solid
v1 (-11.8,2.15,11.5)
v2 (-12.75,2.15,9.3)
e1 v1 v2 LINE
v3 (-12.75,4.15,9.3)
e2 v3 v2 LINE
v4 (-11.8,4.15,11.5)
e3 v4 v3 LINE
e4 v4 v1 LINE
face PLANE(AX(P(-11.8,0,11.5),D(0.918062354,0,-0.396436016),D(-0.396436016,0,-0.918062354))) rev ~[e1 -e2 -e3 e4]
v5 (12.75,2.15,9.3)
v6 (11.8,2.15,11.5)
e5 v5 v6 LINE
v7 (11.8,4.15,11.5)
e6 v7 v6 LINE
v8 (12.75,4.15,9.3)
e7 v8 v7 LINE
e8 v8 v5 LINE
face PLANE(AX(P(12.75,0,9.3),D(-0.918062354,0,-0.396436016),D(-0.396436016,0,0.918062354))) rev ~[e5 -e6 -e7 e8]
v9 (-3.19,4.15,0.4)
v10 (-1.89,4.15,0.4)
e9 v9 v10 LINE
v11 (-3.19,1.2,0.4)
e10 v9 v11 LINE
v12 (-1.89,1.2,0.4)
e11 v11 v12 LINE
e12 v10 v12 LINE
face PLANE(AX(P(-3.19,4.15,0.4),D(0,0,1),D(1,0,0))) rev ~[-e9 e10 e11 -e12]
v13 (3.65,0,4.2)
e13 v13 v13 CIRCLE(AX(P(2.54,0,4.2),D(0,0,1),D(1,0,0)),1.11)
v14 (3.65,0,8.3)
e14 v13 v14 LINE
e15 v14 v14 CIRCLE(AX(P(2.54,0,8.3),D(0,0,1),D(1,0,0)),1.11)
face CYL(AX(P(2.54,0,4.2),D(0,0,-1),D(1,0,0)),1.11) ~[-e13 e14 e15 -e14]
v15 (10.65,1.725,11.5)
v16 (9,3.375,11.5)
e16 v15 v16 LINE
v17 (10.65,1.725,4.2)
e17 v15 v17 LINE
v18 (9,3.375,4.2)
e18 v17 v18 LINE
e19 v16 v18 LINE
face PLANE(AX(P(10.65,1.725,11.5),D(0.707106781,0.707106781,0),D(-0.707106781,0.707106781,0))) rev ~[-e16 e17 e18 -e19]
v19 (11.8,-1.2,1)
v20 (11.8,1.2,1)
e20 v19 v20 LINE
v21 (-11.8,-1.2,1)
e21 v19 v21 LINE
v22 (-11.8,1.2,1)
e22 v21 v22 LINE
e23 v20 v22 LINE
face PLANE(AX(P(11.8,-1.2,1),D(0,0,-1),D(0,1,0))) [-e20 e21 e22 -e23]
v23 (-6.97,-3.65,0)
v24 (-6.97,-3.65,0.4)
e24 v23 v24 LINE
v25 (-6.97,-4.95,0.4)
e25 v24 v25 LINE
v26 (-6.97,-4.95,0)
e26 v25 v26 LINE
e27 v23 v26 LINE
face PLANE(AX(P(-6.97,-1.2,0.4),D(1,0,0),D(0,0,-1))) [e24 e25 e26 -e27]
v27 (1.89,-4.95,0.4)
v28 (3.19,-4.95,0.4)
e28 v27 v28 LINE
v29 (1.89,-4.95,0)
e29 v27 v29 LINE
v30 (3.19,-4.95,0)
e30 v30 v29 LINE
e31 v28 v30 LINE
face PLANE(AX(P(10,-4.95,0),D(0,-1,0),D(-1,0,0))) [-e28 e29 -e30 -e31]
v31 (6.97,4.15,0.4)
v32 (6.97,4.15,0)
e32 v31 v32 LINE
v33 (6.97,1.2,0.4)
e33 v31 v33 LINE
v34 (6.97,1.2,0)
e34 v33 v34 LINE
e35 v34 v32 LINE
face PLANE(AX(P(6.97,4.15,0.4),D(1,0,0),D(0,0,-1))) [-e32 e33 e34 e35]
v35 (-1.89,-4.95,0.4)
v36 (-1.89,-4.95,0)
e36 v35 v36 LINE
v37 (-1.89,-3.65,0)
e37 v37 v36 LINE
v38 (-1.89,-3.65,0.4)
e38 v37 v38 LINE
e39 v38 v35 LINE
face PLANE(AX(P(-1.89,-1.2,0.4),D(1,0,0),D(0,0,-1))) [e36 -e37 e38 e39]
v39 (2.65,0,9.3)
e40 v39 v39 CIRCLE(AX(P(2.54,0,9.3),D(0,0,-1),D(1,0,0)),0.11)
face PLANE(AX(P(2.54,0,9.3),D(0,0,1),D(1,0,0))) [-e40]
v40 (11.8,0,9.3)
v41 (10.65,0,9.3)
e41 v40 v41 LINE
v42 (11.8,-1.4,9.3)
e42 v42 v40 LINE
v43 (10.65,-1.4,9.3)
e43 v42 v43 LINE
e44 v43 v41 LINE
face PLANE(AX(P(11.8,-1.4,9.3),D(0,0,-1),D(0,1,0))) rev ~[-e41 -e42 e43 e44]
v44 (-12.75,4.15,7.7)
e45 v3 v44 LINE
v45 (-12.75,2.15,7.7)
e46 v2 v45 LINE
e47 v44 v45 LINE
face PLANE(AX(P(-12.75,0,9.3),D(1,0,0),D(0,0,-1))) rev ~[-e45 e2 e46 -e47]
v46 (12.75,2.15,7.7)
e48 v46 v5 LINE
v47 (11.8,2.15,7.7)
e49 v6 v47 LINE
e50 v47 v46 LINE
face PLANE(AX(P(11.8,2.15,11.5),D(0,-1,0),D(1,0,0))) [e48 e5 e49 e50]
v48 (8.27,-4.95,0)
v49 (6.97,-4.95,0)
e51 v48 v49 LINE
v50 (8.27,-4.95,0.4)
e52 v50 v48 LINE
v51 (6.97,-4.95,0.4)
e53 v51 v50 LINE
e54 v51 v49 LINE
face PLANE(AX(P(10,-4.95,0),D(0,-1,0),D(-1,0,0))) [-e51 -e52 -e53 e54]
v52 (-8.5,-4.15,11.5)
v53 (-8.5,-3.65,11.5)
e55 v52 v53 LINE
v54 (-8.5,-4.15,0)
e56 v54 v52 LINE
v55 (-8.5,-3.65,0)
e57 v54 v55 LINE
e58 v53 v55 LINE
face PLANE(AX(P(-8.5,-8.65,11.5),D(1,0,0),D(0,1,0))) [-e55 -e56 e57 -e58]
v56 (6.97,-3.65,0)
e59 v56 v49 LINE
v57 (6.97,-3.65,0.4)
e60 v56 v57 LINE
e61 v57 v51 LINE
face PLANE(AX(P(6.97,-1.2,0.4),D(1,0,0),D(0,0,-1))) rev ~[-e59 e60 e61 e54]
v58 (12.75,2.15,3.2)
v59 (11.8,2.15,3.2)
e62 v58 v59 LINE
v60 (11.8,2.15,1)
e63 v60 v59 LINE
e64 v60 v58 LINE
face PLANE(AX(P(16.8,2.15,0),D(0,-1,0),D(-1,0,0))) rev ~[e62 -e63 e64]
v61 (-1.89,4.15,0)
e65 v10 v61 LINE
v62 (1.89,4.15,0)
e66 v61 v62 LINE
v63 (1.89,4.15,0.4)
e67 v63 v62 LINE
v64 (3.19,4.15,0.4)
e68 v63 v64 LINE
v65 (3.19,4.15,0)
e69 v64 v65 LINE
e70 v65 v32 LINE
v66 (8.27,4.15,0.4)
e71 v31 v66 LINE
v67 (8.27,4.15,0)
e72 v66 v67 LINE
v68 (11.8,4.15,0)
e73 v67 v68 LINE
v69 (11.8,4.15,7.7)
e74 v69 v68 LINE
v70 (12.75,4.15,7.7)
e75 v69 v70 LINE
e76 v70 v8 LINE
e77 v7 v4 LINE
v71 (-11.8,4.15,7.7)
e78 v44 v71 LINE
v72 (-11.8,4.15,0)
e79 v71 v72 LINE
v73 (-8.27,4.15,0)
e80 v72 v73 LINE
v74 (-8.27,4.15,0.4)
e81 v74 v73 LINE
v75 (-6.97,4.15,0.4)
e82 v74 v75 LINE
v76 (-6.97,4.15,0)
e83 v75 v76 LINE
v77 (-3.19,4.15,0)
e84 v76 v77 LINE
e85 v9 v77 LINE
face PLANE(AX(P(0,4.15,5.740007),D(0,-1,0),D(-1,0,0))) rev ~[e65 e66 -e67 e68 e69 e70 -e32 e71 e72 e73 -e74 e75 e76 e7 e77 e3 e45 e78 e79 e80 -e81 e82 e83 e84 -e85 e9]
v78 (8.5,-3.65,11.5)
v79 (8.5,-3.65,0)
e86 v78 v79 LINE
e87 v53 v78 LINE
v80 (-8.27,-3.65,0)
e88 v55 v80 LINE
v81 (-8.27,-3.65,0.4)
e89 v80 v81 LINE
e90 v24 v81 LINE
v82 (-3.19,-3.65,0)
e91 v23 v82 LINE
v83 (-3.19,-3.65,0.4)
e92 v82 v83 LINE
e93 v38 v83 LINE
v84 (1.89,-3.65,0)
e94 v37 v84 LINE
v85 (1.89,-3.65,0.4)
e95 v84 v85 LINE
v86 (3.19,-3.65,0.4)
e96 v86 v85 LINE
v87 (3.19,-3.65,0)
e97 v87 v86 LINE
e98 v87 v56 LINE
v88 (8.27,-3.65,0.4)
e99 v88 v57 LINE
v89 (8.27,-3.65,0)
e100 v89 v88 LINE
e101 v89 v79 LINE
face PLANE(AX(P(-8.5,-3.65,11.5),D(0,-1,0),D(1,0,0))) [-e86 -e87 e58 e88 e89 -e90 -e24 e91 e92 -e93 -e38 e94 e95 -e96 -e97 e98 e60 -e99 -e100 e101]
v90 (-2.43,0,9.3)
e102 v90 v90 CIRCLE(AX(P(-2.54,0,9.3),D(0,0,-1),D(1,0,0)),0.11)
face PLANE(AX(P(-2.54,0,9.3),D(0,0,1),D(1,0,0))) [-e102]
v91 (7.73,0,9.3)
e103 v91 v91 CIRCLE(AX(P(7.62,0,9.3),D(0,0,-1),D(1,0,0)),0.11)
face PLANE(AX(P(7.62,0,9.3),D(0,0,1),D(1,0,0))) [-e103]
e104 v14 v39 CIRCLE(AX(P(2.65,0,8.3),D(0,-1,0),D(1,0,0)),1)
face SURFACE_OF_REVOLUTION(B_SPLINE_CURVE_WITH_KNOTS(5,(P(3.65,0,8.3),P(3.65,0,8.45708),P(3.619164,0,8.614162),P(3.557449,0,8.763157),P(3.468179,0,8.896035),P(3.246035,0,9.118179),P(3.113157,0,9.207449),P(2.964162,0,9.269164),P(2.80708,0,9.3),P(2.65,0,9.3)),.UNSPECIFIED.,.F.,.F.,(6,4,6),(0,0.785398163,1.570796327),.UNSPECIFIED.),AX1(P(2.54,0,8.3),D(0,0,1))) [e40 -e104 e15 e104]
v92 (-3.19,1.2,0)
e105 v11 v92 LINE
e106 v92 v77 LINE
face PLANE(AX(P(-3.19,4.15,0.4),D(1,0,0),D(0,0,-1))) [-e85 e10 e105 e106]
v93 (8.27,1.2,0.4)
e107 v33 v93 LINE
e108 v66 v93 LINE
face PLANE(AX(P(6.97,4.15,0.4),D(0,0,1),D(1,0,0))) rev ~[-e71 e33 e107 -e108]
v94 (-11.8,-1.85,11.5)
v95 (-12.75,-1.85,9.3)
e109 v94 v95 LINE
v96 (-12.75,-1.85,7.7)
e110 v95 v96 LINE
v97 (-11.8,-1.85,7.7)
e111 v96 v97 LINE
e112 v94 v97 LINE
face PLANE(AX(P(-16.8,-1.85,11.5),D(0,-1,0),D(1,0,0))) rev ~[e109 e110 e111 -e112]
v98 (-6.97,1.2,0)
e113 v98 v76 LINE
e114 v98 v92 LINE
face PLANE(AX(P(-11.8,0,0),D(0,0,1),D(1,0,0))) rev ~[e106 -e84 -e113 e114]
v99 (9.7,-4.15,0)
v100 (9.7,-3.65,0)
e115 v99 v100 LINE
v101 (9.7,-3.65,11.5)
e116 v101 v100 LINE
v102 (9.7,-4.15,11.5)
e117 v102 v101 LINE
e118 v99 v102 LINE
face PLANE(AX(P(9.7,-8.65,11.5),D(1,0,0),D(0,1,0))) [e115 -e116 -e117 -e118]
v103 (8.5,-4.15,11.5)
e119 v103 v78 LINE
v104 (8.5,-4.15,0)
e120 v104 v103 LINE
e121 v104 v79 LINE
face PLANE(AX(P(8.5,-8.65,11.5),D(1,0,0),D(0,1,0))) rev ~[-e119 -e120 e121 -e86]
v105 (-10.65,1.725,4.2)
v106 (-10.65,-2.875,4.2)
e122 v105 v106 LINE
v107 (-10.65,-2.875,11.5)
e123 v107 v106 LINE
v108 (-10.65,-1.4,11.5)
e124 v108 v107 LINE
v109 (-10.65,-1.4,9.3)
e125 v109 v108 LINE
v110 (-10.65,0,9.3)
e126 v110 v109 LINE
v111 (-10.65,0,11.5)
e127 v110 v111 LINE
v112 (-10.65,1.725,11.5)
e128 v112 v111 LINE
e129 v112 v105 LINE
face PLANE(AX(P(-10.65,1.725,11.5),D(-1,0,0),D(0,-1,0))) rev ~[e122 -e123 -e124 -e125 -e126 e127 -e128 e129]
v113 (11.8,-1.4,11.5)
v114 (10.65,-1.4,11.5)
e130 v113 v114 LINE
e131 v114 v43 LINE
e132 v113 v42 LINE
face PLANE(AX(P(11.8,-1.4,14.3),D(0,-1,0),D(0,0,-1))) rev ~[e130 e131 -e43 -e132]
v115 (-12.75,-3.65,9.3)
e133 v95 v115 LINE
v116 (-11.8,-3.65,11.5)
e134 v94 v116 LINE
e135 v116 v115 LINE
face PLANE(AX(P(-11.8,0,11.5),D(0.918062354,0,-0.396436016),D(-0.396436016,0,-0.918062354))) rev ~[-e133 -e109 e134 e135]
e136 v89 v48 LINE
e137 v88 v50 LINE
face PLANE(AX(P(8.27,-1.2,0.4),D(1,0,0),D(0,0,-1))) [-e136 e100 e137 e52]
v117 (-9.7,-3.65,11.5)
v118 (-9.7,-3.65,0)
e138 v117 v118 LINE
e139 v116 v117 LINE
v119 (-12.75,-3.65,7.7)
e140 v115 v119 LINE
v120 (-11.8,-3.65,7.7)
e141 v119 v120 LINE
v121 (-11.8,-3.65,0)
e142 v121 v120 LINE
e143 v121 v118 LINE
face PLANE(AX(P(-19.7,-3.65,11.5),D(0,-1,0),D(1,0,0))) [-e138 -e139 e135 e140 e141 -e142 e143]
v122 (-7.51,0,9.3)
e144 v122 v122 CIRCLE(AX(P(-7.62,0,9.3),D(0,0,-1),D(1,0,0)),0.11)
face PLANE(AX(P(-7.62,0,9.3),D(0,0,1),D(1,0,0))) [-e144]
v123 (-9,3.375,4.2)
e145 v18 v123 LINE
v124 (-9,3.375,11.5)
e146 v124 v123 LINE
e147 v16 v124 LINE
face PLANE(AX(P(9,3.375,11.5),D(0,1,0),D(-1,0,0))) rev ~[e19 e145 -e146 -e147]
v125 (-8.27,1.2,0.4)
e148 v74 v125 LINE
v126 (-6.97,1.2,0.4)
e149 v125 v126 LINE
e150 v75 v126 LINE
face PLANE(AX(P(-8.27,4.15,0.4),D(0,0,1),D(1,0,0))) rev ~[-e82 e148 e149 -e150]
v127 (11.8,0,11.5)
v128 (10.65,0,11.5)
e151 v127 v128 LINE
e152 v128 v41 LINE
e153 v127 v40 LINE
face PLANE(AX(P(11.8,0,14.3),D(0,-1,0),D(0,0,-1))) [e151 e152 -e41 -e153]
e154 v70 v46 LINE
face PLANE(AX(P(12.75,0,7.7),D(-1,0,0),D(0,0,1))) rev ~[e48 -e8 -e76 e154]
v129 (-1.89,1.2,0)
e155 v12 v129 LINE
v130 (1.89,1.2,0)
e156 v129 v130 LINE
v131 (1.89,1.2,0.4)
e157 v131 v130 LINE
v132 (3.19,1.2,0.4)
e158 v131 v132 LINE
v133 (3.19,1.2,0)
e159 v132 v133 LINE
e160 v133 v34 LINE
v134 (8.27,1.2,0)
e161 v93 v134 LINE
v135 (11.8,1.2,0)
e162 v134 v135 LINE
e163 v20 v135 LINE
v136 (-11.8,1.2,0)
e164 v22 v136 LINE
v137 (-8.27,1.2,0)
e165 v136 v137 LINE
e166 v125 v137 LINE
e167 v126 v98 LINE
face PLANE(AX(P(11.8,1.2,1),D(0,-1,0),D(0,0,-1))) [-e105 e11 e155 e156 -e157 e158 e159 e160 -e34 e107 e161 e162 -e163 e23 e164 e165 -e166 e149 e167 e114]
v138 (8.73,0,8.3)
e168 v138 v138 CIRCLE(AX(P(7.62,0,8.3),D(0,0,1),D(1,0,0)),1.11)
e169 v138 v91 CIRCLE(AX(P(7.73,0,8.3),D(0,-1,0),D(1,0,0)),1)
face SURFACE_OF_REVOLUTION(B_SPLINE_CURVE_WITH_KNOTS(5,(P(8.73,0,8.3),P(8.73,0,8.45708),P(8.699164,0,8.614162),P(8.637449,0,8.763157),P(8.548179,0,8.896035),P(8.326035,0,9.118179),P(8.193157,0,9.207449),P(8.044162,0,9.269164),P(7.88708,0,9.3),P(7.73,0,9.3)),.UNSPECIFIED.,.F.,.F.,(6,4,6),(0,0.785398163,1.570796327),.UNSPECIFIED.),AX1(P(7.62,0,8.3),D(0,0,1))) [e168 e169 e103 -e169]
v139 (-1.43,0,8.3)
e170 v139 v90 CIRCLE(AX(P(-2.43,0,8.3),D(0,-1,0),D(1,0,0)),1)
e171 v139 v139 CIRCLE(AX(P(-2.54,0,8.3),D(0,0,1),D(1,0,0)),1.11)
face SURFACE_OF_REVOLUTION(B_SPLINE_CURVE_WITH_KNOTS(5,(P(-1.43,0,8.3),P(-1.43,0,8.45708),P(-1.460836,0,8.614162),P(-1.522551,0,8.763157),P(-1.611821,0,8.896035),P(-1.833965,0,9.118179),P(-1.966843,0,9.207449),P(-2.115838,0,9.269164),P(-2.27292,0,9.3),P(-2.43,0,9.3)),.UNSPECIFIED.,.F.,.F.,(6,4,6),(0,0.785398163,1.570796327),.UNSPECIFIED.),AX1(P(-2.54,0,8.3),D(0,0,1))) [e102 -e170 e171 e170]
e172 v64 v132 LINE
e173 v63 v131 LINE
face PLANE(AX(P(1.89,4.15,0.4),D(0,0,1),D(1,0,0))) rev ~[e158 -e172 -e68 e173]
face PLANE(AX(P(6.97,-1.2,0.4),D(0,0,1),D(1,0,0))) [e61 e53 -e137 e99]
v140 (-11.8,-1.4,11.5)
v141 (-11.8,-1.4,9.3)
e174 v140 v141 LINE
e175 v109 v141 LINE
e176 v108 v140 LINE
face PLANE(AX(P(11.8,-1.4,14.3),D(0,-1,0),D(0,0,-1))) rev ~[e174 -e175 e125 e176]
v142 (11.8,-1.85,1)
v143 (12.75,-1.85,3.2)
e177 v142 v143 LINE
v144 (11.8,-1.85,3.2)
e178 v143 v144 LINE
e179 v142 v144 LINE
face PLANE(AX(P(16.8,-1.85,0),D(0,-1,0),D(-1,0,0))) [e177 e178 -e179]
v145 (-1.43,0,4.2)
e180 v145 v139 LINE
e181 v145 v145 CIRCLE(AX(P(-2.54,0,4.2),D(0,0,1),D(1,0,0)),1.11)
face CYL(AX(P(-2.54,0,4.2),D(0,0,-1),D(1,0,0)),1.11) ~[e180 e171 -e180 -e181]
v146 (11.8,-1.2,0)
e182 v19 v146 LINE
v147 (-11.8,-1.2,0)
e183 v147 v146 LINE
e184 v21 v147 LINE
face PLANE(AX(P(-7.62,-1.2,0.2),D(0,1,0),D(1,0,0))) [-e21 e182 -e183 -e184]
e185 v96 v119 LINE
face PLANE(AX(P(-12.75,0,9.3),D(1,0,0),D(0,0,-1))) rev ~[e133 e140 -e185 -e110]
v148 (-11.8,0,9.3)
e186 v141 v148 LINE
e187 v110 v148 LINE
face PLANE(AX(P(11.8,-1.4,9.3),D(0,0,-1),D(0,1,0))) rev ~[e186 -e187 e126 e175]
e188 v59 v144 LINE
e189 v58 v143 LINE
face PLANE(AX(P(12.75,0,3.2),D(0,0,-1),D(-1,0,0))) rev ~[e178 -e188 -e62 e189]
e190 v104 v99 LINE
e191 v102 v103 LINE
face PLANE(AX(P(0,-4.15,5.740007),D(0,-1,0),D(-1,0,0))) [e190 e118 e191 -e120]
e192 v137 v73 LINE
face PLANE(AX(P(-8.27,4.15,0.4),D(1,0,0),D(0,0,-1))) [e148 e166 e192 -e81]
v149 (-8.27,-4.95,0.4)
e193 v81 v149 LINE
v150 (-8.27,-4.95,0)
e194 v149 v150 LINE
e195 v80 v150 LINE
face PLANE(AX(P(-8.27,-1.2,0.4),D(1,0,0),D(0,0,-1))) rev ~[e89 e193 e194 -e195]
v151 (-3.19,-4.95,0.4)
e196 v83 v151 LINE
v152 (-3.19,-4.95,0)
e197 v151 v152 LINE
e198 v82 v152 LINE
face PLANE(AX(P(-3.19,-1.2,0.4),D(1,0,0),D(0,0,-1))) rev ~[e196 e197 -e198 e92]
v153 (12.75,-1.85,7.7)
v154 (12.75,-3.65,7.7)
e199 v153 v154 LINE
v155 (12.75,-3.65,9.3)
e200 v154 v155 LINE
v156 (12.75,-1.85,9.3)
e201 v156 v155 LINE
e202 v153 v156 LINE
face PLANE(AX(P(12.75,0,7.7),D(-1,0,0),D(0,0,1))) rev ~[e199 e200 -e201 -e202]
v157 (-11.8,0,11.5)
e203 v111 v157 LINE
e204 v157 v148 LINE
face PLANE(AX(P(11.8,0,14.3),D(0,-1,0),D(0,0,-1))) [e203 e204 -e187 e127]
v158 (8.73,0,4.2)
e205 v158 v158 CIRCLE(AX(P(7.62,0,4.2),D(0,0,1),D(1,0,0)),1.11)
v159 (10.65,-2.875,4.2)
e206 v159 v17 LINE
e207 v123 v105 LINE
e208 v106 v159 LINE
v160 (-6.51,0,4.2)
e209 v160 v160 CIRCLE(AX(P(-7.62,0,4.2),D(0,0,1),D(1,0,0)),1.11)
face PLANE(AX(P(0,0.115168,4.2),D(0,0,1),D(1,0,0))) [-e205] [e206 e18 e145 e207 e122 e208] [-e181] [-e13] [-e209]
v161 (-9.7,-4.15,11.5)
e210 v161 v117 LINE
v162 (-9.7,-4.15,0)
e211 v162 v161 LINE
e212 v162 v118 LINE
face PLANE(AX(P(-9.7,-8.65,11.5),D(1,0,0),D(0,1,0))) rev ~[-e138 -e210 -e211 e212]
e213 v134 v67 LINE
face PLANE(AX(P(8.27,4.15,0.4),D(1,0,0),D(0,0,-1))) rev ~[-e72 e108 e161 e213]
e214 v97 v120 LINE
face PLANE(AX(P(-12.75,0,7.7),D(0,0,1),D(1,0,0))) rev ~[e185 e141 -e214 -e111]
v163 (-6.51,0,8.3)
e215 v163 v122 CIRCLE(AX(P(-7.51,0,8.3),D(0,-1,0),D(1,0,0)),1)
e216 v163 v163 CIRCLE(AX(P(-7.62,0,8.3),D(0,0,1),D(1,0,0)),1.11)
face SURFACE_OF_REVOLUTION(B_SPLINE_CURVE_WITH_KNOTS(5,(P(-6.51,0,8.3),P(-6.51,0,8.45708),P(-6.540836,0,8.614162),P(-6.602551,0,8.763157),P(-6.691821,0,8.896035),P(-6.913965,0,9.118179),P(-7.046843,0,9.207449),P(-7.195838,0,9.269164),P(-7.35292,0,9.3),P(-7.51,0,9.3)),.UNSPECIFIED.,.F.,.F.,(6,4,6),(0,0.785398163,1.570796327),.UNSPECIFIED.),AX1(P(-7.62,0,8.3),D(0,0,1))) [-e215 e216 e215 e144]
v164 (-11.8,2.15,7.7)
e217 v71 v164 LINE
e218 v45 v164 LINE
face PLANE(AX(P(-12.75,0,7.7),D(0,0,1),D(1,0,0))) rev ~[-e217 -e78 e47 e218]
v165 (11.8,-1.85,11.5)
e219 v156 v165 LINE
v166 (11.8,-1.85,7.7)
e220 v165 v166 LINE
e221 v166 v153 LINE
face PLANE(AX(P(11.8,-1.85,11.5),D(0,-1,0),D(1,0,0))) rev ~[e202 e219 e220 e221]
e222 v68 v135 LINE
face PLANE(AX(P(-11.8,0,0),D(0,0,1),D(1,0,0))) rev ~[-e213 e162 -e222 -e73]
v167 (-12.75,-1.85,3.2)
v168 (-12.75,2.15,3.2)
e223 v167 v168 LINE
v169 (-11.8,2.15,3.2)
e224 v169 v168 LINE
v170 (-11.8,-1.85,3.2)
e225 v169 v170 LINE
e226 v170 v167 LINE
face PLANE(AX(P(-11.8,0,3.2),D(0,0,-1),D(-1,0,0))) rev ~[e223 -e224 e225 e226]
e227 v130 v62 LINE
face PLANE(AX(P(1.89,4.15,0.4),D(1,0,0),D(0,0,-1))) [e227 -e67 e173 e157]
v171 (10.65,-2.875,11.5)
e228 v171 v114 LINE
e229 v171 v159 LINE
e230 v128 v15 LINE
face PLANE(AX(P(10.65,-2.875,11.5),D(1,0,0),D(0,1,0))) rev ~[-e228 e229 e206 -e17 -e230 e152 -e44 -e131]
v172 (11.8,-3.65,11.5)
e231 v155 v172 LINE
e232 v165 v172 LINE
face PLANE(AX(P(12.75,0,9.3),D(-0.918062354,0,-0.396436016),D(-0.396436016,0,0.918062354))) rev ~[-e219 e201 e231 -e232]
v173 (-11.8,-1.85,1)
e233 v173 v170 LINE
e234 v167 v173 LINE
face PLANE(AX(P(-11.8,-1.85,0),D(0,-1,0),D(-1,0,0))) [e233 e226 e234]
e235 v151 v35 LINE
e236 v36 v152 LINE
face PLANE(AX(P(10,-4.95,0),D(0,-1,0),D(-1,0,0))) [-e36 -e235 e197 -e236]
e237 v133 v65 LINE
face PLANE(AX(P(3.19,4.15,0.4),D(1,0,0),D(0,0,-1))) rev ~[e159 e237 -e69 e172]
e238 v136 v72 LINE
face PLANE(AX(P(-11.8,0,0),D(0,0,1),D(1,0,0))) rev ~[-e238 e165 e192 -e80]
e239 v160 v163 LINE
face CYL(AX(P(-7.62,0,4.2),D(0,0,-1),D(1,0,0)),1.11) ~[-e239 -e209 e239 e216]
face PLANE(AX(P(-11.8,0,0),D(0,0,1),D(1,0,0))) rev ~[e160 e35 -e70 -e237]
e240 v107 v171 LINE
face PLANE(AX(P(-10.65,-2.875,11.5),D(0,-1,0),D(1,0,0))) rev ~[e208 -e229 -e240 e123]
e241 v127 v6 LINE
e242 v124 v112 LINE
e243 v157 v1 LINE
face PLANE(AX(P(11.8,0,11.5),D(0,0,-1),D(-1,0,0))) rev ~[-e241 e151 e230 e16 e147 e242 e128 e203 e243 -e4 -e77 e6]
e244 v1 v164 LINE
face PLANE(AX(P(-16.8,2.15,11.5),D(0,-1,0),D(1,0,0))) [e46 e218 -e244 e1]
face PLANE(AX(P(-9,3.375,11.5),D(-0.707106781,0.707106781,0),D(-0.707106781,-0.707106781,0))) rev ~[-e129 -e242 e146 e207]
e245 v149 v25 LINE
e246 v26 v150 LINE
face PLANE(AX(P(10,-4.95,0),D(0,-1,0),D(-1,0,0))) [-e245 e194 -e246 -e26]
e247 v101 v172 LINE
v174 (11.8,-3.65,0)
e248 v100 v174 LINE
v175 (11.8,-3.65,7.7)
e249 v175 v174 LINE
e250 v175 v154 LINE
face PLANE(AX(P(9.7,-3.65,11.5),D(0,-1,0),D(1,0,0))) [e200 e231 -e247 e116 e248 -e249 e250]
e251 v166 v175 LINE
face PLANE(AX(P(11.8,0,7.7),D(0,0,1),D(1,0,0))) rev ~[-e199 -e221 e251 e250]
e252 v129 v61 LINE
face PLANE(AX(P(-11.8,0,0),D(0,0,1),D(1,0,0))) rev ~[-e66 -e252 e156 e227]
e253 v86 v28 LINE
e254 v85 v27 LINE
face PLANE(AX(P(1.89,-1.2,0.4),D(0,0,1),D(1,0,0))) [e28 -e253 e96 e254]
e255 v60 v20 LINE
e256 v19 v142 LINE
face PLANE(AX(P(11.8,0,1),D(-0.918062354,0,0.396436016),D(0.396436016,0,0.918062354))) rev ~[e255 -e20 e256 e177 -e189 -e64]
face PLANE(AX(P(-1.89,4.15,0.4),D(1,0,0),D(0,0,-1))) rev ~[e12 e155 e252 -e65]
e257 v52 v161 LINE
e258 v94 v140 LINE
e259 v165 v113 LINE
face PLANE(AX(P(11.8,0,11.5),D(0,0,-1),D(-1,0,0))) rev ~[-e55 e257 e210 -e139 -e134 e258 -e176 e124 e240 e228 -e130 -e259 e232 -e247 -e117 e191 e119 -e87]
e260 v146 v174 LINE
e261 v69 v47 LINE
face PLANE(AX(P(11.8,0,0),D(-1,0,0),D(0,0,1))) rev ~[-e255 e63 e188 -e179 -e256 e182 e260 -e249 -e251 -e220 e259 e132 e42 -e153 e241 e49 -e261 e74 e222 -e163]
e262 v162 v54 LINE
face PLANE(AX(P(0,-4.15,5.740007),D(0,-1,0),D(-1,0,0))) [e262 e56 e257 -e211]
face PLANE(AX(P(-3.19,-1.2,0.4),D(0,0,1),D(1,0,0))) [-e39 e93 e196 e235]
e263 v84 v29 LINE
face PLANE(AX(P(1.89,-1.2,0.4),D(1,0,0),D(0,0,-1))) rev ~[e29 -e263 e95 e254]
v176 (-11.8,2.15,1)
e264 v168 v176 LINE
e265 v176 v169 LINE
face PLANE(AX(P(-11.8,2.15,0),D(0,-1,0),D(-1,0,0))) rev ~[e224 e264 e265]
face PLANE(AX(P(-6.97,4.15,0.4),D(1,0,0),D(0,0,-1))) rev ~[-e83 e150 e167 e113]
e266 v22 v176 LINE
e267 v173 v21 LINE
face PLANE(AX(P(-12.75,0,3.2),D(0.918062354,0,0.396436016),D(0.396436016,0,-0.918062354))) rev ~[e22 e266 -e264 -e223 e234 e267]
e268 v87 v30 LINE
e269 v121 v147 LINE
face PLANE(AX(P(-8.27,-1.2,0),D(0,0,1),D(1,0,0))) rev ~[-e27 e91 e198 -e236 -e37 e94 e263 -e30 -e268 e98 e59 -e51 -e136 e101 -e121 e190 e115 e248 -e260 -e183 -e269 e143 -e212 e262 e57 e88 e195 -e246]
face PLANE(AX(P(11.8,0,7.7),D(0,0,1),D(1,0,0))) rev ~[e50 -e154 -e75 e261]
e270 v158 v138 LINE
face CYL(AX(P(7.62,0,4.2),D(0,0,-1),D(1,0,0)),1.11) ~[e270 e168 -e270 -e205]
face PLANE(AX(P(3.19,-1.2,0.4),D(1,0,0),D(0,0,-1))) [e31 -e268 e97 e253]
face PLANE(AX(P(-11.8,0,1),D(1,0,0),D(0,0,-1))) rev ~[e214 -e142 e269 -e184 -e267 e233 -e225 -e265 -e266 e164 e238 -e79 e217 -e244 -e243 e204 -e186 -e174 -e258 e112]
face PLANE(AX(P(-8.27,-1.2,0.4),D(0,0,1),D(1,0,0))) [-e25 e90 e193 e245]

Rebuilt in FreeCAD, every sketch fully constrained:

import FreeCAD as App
import Part
import Sketcher
from FreeCAD import Vector
Q = App.Units.Quantity


def edges_at(feature, points):
    """Names of the edges that pass closest to the given points."""
    edges = feature.Shape.Edges
    near = lambda p: min(range(len(edges)), key=lambda i: edges[i].distToShape(Part.Vertex(*p))[0])
    return sorted({f"Edge{near(p) + 1}" for p in points})

doc = App.newDocument("Part")
body = doc.addObject("PartDesign::Body", "Body")

# Sketch on XZ plane
sketch1 = body.newObject("Sketcher::SketchObject", "Sketch")
sketch1.AttachmentSupport = (doc.getObject("XZ_Plane"), [""])
sketch1.MapMode = "FlatFace"
sketch1.addGeometry([
    Part.LineSegment(Vector(11.8, 0, 0), Vector(-11.8, 0, 0)),  # 0
    Part.LineSegment(Vector(-11.8, 0, 0), Vector(-11.8, 1, 0)),  # 1
    Part.LineSegment(Vector(-11.8, 1, 0), Vector(-12.75, 3.2, 0)),  # 2
    Part.LineSegment(Vector(-12.75, 3.2, 0), Vector(-11.8, 3.2, 0)),  # 3
    Part.LineSegment(Vector(-11.8, 3.2, 0), Vector(-11.8, 7.7, 0)),  # 4
    Part.LineSegment(Vector(-11.8, 7.7, 0), Vector(-12.75, 7.7, 0)),  # 5
    Part.LineSegment(Vector(-12.75, 7.7, 0), Vector(-12.75, 9.3, 0)),  # 6
    Part.LineSegment(Vector(-12.75, 9.3, 0), Vector(-11.8, 11.5, 0)),  # 7
    Part.LineSegment(Vector(-11.8, 11.5, 0), Vector(11.8, 11.5, 0)),  # 8
    Part.LineSegment(Vector(11.8, 11.5, 0), Vector(12.75, 9.3, 0)),  # 9
    Part.LineSegment(Vector(12.75, 9.3, 0), Vector(12.75, 7.7, 0)),  # 10
    Part.LineSegment(Vector(12.75, 7.7, 0), Vector(11.8, 7.7, 0)),  # 11
    Part.LineSegment(Vector(11.8, 7.7, 0), Vector(11.8, 3.2, 0)),  # 12
    Part.LineSegment(Vector(11.8, 3.2, 0), Vector(12.75, 3.2, 0)),  # 13
    Part.LineSegment(Vector(12.75, 3.2, 0), Vector(11.8, 1, 0)),  # 14
    Part.LineSegment(Vector(11.8, 1, 0), Vector(11.8, 0, 0)),  # 15
], False)
sketch1.addConstraint([
    Sketcher.Constraint("Coincident", 0, 2, 1, 1),
    Sketcher.Constraint("Coincident", 1, 2, 2, 1),
    Sketcher.Constraint("Coincident", 2, 2, 3, 1),
    Sketcher.Constraint("Coincident", 3, 2, 4, 1),
    Sketcher.Constraint("Coincident", 4, 2, 5, 1),
    Sketcher.Constraint("Coincident", 5, 2, 6, 1),
    Sketcher.Constraint("Coincident", 6, 2, 7, 1),
    Sketcher.Constraint("Coincident", 7, 2, 8, 1),
    Sketcher.Constraint("Coincident", 8, 2, 9, 1),
    Sketcher.Constraint("Coincident", 9, 2, 10, 1),
    Sketcher.Constraint("Coincident", 10, 2, 11, 1),
    Sketcher.Constraint("Coincident", 11, 2, 12, 1),
    Sketcher.Constraint("Coincident", 12, 2, 13, 1),
    Sketcher.Constraint("Coincident", 13, 2, 14, 1),
    Sketcher.Constraint("Coincident", 14, 2, 15, 1),
    Sketcher.Constraint("Coincident", 15, 2, 0, 1),
    Sketcher.Constraint("Horizontal", 0),
    Sketcher.Constraint("Vertical", 1),
    Sketcher.Constraint("Horizontal", 3),
    Sketcher.Constraint("Vertical", 4),
    Sketcher.Constraint("Horizontal", 5),
    Sketcher.Constraint("Vertical", 6),
    Sketcher.Constraint("Horizontal", 8),
    Sketcher.Constraint("Vertical", 10),
    Sketcher.Constraint("Horizontal", 11),
    Sketcher.Constraint("Vertical", 12),
    Sketcher.Constraint("Horizontal", 13),
    Sketcher.Constraint("Vertical", 15),
    Sketcher.Constraint("Symmetric", 0, 2, 15, 2, -1, 1),
    Sketcher.Constraint("Symmetric", 6, 2, 9, 2, -2),
    Sketcher.Constraint("Symmetric", 4, 2, 11, 2, -2),
    Sketcher.Constraint("Symmetric", 2, 2, 13, 2, -2),
    Sketcher.Constraint("Parallel", 2, 9),
    Sketcher.Constraint("Parallel", 7, 14),
    Sketcher.Constraint("Horizontal", 1, 2, 14, 2),
    Sketcher.Constraint("Vertical", 1, 2, 3, 2),
    Sketcher.Constraint("Vertical", 2, 2, 5, 2),
    Sketcher.Constraint("Vertical", 4, 2, 7, 2),
    Sketcher.Constraint("DistanceY", 1, 1, 1, 2, Q("1 mm")),
    Sketcher.Constraint("DistanceX", 0, 2, 0, 1, Q("23.6 mm")),
    Sketcher.Constraint("DistanceY", 4, 1, 4, 2, Q("4.5 mm")),
    Sketcher.Constraint("DistanceY", 6, 1, 6, 2, Q("1.6 mm")),
    Sketcher.Constraint("DistanceX", 3, 1, 3, 2, Q("0.95 mm")),
    Sketcher.Constraint("DistanceY", -1, 1, 2, 2, Q("3.2 mm")),
])
pad1 = body.newObject("PartDesign::Pad", "Pad")
pad1.Profile = sketch1
pad1.Length = 8.3
pad1.Midplane = True

# Sketch on XY plane
sketch2 = body.newObject("Sketcher::SketchObject", "Sketch001")
sketch2.AttachmentSupport = (doc.getObject("XY_Plane"), [""])
sketch2.MapMode = "FlatFace"
sketch2.AttachmentOffset = App.Placement(Vector(0, 0, 11.5), App.Rotation())
sketch2.addGeometry([
    Part.LineSegment(Vector(9.7, -3.65, 0), Vector(9.7, -8.65, 0)),  # 0
    Part.LineSegment(Vector(9.7, -8.65, 0), Vector(19.7, -8.65, 0)),  # 1
    Part.LineSegment(Vector(19.7, -8.65, 0), Vector(19.7, -3.65, 0)),  # 2
    Part.LineSegment(Vector(19.7, -3.65, 0), Vector(9.7, -3.65, 0)),  # 3
    Part.LineSegment(Vector(-19.7, -3.65, 0), Vector(-19.7, -8.65, 0)),  # 4
    Part.LineSegment(Vector(-19.7, -8.65, 0), Vector(-9.7, -8.65, 0)),  # 5
    Part.LineSegment(Vector(-9.7, -8.65, 0), Vector(-9.7, -3.65, 0)),  # 6
    Part.LineSegment(Vector(-9.7, -3.65, 0), Vector(-19.7, -3.65, 0)),  # 7
    Part.LineSegment(Vector(-8.5, -3.65, 0), Vector(-8.5, -8.65, 0)),  # 8
    Part.LineSegment(Vector(-8.5, -8.65, 0), Vector(8.5, -8.65, 0)),  # 9
    Part.LineSegment(Vector(8.5, -8.65, 0), Vector(8.5, -3.65, 0)),  # 10
    Part.LineSegment(Vector(8.5, -3.65, 0), Vector(-8.5, -3.65, 0)),  # 11
], False)
sketch2.addConstraint([
    Sketcher.Constraint("Coincident", 0, 2, 1, 1),
    Sketcher.Constraint("Coincident", 1, 2, 2, 1),
    Sketcher.Constraint("Coincident", 2, 2, 3, 1),
    Sketcher.Constraint("Coincident", 3, 2, 0, 1),
    Sketcher.Constraint("Coincident", 4, 2, 5, 1),
    Sketcher.Constraint("Coincident", 5, 2, 6, 1),
    Sketcher.Constraint("Coincident", 6, 2, 7, 1),
    Sketcher.Constraint("Coincident", 7, 2, 4, 1),
    Sketcher.Constraint("Coincident", 8, 2, 9, 1),
    Sketcher.Constraint("Coincident", 9, 2, 10, 1),
    Sketcher.Constraint("Coincident", 10, 2, 11, 1),
    Sketcher.Constraint("Coincident", 11, 2, 8, 1),
    Sketcher.Constraint("Vertical", 0),
    Sketcher.Constraint("Horizontal", 1),
    Sketcher.Constraint("Vertical", 2),
    Sketcher.Constraint("Horizontal", 3),
    Sketcher.Constraint("Vertical", 4),
    Sketcher.Constraint("Horizontal", 5),
    Sketcher.Constraint("Vertical", 6),
    Sketcher.Constraint("Horizontal", 7),
    Sketcher.Constraint("Vertical", 8),
    Sketcher.Constraint("Horizontal", 9),
    Sketcher.Constraint("Vertical", 10),
    Sketcher.Constraint("Horizontal", 11),
    Sketcher.Constraint("Symmetric", 1, 2, 4, 2, -2),
    Sketcher.Constraint("Symmetric", 3, 2, 6, 2, -2),
    Sketcher.Constraint("Horizontal", 5, 2, 8, 2),
    Sketcher.Constraint("Horizontal", 7, 2, 10, 2),
    Sketcher.Constraint("DistanceX", 1, 1, 1, 2, Q("10 mm")),
    Sketcher.Constraint("DistanceX", 9, 1, 9, 2, Q("17 mm")),
    Sketcher.Constraint("DistanceY", 0, 2, 0, 1, Q("5 mm")),
    Sketcher.Constraint("DistanceX", -1, 1, 0, 2, Q("9.7 mm")),
    Sketcher.Constraint("DistanceX", 8, 2, -1, 1, Q("8.5 mm")),
    Sketcher.Constraint("DistanceY", 0, 2, -1, 1, Q("8.65 mm")),
])
pocket1 = body.newObject("PartDesign::Pocket", "Pocket")
pocket1.Profile = sketch2
pocket1.Type = "ThroughAll"

# Sketch on XY plane
sketch3 = body.newObject("Sketcher::SketchObject", "Sketch002")
sketch3.AttachmentSupport = (doc.getObject("XY_Plane"), [""])
sketch3.MapMode = "FlatFace"
sketch3.AttachmentOffset = App.Placement(Vector(0, 0, 11.5), App.Rotation())
sketch3.addGeometry([
    Part.LineSegment(Vector(11.8, 2.15, 0), Vector(11.8, -1.85, 0)),  # 0
    Part.LineSegment(Vector(11.8, -1.85, 0), Vector(16.8, -1.85, 0)),  # 1
    Part.LineSegment(Vector(16.8, -1.85, 0), Vector(16.8, 2.15, 0)),  # 2
    Part.LineSegment(Vector(16.8, 2.15, 0), Vector(11.8, 2.15, 0)),  # 3
    Part.LineSegment(Vector(-16.8, 2.15, 0), Vector(-16.8, -1.85, 0)),  # 4
    Part.LineSegment(Vector(-16.8, -1.85, 0), Vector(-11.8, -1.85, 0)),  # 5
    Part.LineSegment(Vector(-11.8, -1.85, 0), Vector(-11.8, 2.15, 0)),  # 6
    Part.LineSegment(Vector(-11.8, 2.15, 0), Vector(-16.8, 2.15, 0)),  # 7
], False)
sketch3.addConstraint([
    Sketcher.Constraint("Coincident", 0, 2, 1, 1),
    Sketcher.Constraint("Coincident", 1, 2, 2, 1),
    Sketcher.Constraint("Coincident", 2, 2, 3, 1),
    Sketcher.Constraint("Coincident", 3, 2, 0, 1),
    Sketcher.Constraint("Coincident", 4, 2, 5, 1),
    Sketcher.Constraint("Coincident", 5, 2, 6, 1),
    Sketcher.Constraint("Coincident", 6, 2, 7, 1),
    Sketcher.Constraint("Coincident", 7, 2, 4, 1),
    Sketcher.Constraint("Vertical", 0),
    Sketcher.Constraint("Horizontal", 1),
    Sketcher.Constraint("Vertical", 2),
    Sketcher.Constraint("Horizontal", 3),
    Sketcher.Constraint("Vertical", 4),
    Sketcher.Constraint("Horizontal", 5),
    Sketcher.Constraint("Vertical", 6),
    Sketcher.Constraint("Horizontal", 7),
    Sketcher.Constraint("Symmetric", 1, 2, 4, 2, -2),
    Sketcher.Constraint("Symmetric", 3, 2, 6, 2, -2),
    Sketcher.Constraint("DistanceX", 1, 1, 1, 2, Q("5 mm")),
    Sketcher.Constraint("DistanceY", 0, 2, 0, 1, Q("4 mm")),
    Sketcher.Constraint("DistanceX", -1, 1, 0, 2, Q("11.8 mm")),
    Sketcher.Constraint("DistanceY", 0, 2, -1, 1, Q("1.85 mm")),
])
pocket2 = body.newObject("PartDesign::Pocket", "Pocket001")
pocket2.Profile = sketch3
pocket2.Length = 6.3

# Sketch on XY plane
sketch4 = body.newObject("Sketcher::SketchObject", "Sketch003")
sketch4.AttachmentSupport = (doc.getObject("XY_Plane"), [""])
sketch4.MapMode = "FlatFace"
sketch4.addGeometry([
    Part.LineSegment(Vector(-11.8, 6.690428, 0), Vector(-11.8, 2.15, 0)),  # 0
    Part.LineSegment(Vector(-11.8, 2.15, 0), Vector(-16.8, 2.15, 0)),  # 1
    Part.LineSegment(Vector(-16.8, 2.15, 0), Vector(-16.8, 6.690428, 0)),  # 2
    Part.LineSegment(Vector(-16.8, 6.690428, 0), Vector(-11.8, 6.690428, 0)),  # 3
    Part.LineSegment(Vector(-11.8, -1.85, 0), Vector(-11.8, -6.85, 0)),  # 4
    Part.LineSegment(Vector(-11.8, -6.85, 0), Vector(-16.8, -6.85, 0)),  # 5
    Part.LineSegment(Vector(-16.8, -6.85, 0), Vector(-16.8, -1.85, 0)),  # 6
    Part.LineSegment(Vector(-16.8, -1.85, 0), Vector(-11.8, -1.85, 0)),  # 7
    Part.LineSegment(Vector(16.8, -1.85, 0), Vector(16.8, -6.85, 0)),  # 8
    Part.LineSegment(Vector(16.8, -6.85, 0), Vector(11.8, -6.85, 0)),  # 9
    Part.LineSegment(Vector(11.8, -6.85, 0), Vector(11.8, -1.85, 0)),  # 10
    Part.LineSegment(Vector(11.8, -1.85, 0), Vector(16.8, -1.85, 0)),  # 11
    Part.LineSegment(Vector(16.8, 7.15, 0), Vector(16.8, 2.15, 0)),  # 12
    Part.LineSegment(Vector(16.8, 2.15, 0), Vector(11.8, 2.15, 0)),  # 13
    Part.LineSegment(Vector(11.8, 2.15, 0), Vector(11.8, 7.15, 0)),  # 14
    Part.LineSegment(Vector(11.8, 7.15, 0), Vector(16.8, 7.15, 0)),  # 15
], False)
sketch4.addConstraint([
    Sketcher.Constraint("Coincident", 0, 2, 1, 1),
    Sketcher.Constraint("Coincident", 1, 2, 2, 1),
    Sketcher.Constraint("Coincident", 2, 2, 3, 1),
    Sketcher.Constraint("Coincident", 3, 2, 0, 1),
    Sketcher.Constraint("Coincident", 4, 2, 5, 1),
    Sketcher.Constraint("Coincident", 5, 2, 6, 1),
    Sketcher.Constraint("Coincident", 6, 2, 7, 1),
    Sketcher.Constraint("Coincident", 7, 2, 4, 1),
    Sketcher.Constraint("Coincident", 8, 2, 9, 1),
    Sketcher.Constraint("Coincident", 9, 2, 10, 1),
    Sketcher.Constraint("Coincident", 10, 2, 11, 1),
    Sketcher.Constraint("Coincident", 11, 2, 8, 1),
    Sketcher.Constraint("Coincident", 12, 2, 13, 1),
    Sketcher.Constraint("Coincident", 13, 2, 14, 1),
    Sketcher.Constraint("Coincident", 14, 2, 15, 1),
    Sketcher.Constraint("Coincident", 15, 2, 12, 1),
    Sketcher.Constraint("Vertical", 0),
    Sketcher.Constraint("Horizontal", 1),
    Sketcher.Constraint("Vertical", 2),
    Sketcher.Constraint("Horizontal", 3),
    Sketcher.Constraint("Vertical", 4),
    Sketcher.Constraint("Horizontal", 5),
    Sketcher.Constraint("Vertical", 6),
    Sketcher.Constraint("Horizontal", 7),
    Sketcher.Constraint("Vertical", 8),
    Sketcher.Constraint("Horizontal", 9),
    Sketcher.Constraint("Vertical", 10),
    Sketcher.Constraint("Horizontal", 11),
    Sketcher.Constraint("Vertical", 12),
    Sketcher.Constraint("Horizontal", 13),
    Sketcher.Constraint("Vertical", 14),
    Sketcher.Constraint("Horizontal", 15),
    Sketcher.Constraint("Symmetric", 5, 2, 8, 2, -2),
    Sketcher.Constraint("Symmetric", 7, 2, 10, 2, -2),
    Sketcher.Constraint("Symmetric", 1, 2, 12, 2, -2),
    Sketcher.Constraint("Vertical", 3, 2, 4, 2),
    Sketcher.Constraint("Vertical", 2, 2, 5, 2),
    Sketcher.Constraint("Vertical", 10, 2, 13, 2),
    Sketcher.Constraint("Equal", 15, 4),
    Sketcher.Constraint("Equal", 10, 12),
    Sketcher.Constraint("DistanceX", 1, 2, 1, 1, Q("5 mm")),
    Sketcher.Constraint("DistanceY", 4, 2, 0, 2, Q("9 mm")),
    Sketcher.Constraint("DistanceX", 0, 2, -1, 1, Q("11.8 mm")),
    Sketcher.Constraint("DistanceY", -1, 1, 0, 2, Q("2.15 mm")),
    Sketcher.Constraint("DistanceY", 0, 2, 0, 1, Q("4.540428 mm")),
])
pocket3 = body.newObject("PartDesign::Pocket", "Pocket002")
pocket3.Profile = sketch4
pocket3.Length = 6.3
pocket3.Reversed = True

# Sketch on XY plane
sketch5 = body.newObject("Sketcher::SketchObject", "Sketch004")
sketch5.AttachmentSupport = (doc.getObject("XY_Plane"), [""])
sketch5.MapMode = "FlatFace"
sketch5.AttachmentOffset = App.Placement(Vector(0, 0, 11.5), App.Rotation())
sketch5.addGeometry([
    Part.LineSegment(Vector(-10.65, -2.875, 0), Vector(10.65, -2.875, 0)),  # 0
    Part.LineSegment(Vector(10.65, -2.875, 0), Vector(10.65, 1.725, 0)),  # 1
    Part.LineSegment(Vector(10.65, 1.725, 0), Vector(9, 3.375, 0)),  # 2
    Part.LineSegment(Vector(9, 3.375, 0), Vector(-9, 3.375, 0)),  # 3
    Part.LineSegment(Vector(-9, 3.375, 0), Vector(-10.65, 1.725, 0)),  # 4
    Part.LineSegment(Vector(-10.65, 1.725, 0), Vector(-10.65, -2.875, 0)),  # 5
], False)
sketch5.addConstraint([
    Sketcher.Constraint("Coincident", 0, 2, 1, 1),
    Sketcher.Constraint("Coincident", 1, 2, 2, 1),
    Sketcher.Constraint("Coincident", 2, 2, 3, 1),
    Sketcher.Constraint("Coincident", 3, 2, 4, 1),
    Sketcher.Constraint("Coincident", 4, 2, 5, 1),
    Sketcher.Constraint("Coincident", 5, 2, 0, 1),
    Sketcher.Constraint("Horizontal", 0),
    Sketcher.Constraint("Vertical", 1),
    Sketcher.Constraint("Horizontal", 3),
    Sketcher.Constraint("Vertical", 5),
    Sketcher.Constraint("Symmetric", 1, 2, 4, 2, -2),
    Sketcher.Constraint("Perpendicular", 2, 4),
    Sketcher.Constraint("Equal", 2, 4),
    Sketcher.Constraint("DistanceX", 3, 2, 3, 1, Q("18 mm")),
    Sketcher.Constraint("DistanceX", 0, 1, 0, 2, Q("21.3 mm")),
    Sketcher.Constraint("DistanceY", 1, 1, 1, 2, Q("4.6 mm")),
    Sketcher.Constraint("DistanceY", 0, 2, -1, 1, Q("2.875 mm")),
])
pocket4 = body.newObject("PartDesign::Pocket", "Pocket003")
pocket4.Profile = sketch5
pocket4.Length = 7.3

# Sketch on XY plane
sketch6 = body.newObject("Sketcher::SketchObject", "Sketch005")
sketch6.AttachmentSupport = (doc.getObject("XY_Plane"), [""])
sketch6.MapMode = "FlatFace"
sketch6.AttachmentOffset = App.Placement(Vector(0, 0, 4.2), App.Rotation())
sketch6.addGeometry([
    Part.Circle(Vector(-7.62, 0, 0), Vector(0, 0, 1), 1.11),
    Part.Circle(Vector(-2.54, 0, 0), Vector(0, 0, 1), 1.11),
    Part.Circle(Vector(2.54, 0, 0), Vector(0, 0, 1), 1.11),
    Part.Circle(Vector(7.62, 0, 0), Vector(0, 0, 1), 1.11),
], False)
sketch6.addConstraint([
    Sketcher.Constraint("Equal", 0, 1),
    Sketcher.Constraint("Equal", 1, 2),
    Sketcher.Constraint("Equal", 2, 3),
    Sketcher.Constraint("Symmetric", 1, 3, 2, 3, -1, 1),
    Sketcher.Constraint("Symmetric", 0, 3, 3, 3, -1, 1),
    Sketcher.Constraint("PointOnObject", 0, 3, -1),
    Sketcher.Constraint("PointOnObject", 1, 3, -1),
    Sketcher.Constraint("Diameter", 0, Q("2.22 mm")),
    Sketcher.Constraint("DistanceX", 0, 3, -1, 1, Q("7.62 mm")),
    Sketcher.Constraint("DistanceX", 1, 3, -1, 1, Q("2.54 mm")),
])
pad2 = body.newObject("PartDesign::Pad", "Pad001")
pad2.Profile = sketch6
pad2.Length = 5.1
doc.recompute()

fillet = body.newObject("PartDesign::Fillet", "Fillet")
fillet.Base = (pad2, edges_at(pad2, [
    (-8.73, 0, 9.3),
    (-3.65, 0, 9.3),
    (1.43, 0, 9.3),
    (6.51, 0, 9.3),
]))
fillet.Radius = 1

# Sketch on YZ plane
sketch7 = body.newObject("Sketcher::SketchObject", "Sketch006")
sketch7.AttachmentSupport = (doc.getObject("YZ_Plane"), [""])
sketch7.MapMode = "FlatFace"
sketch7.AttachmentOffset = App.Placement(Vector(0, 0, 11.8), App.Rotation())
sketch7.addGeometry([
    Part.LineSegment(Vector(0, 14.3, 0), Vector(-1.4, 14.3, 0)),
    Part.LineSegment(Vector(-1.4, 14.3, 0), Vector(-1.4, 9.3, 0)),
    Part.LineSegment(Vector(-1.4, 9.3, 0), Vector(0, 9.3, 0)),
    Part.LineSegment(Vector(0, 9.3, 0), Vector(0, 14.3, 0)),
], False)
sketch7.addConstraint([
    Sketcher.Constraint("Coincident", 0, 2, 1, 1),
    Sketcher.Constraint("Coincident", 1, 2, 2, 1),
    Sketcher.Constraint("Coincident", 2, 2, 3, 1),
    Sketcher.Constraint("Coincident", 3, 2, 0, 1),
    Sketcher.Constraint("Horizontal", 0),
    Sketcher.Constraint("Vertical", 1),
    Sketcher.Constraint("Horizontal", 2),
    Sketcher.Constraint("Vertical", 3),
    Sketcher.Constraint("PointOnObject", 2, 2, -2),
    Sketcher.Constraint("DistanceY", 1, 2, 1, 1, Q("5 mm")),
    Sketcher.Constraint("DistanceX", 0, 2, 0, 1, Q("1.4 mm")),
    Sketcher.Constraint("DistanceY", -1, 1, 0, 2, Q("14.3 mm")),
])
pocket5 = body.newObject("PartDesign::Pocket", "Pocket004")
pocket5.Profile = sketch7
pocket5.Type = "ThroughAll"

# Sketch on XZ plane
sketch8 = body.newObject("Sketcher::SketchObject", "Sketch007")
sketch8.AttachmentSupport = (doc.getObject("XZ_Plane"), [""])
sketch8.MapMode = "FlatFace"
sketch8.AttachmentOffset = App.Placement(Vector(0, 0, -4.15), App.Rotation())
sketch8.addGeometry([
    Part.LineSegment(Vector(-8.27, -2.6, 0), Vector(-8.27, 0.4, 0)),  # 0
    Part.LineSegment(Vector(-8.27, 0.4, 0), Vector(-6.97, 0.4, 0)),  # 1
    Part.LineSegment(Vector(-6.97, 0.4, 0), Vector(-6.97, -2.6, 0)),  # 2
    Part.LineSegment(Vector(-6.97, -2.6, 0), Vector(-8.27, -2.6, 0)),  # 3
    Part.LineSegment(Vector(-3.19, -2.6, 0), Vector(-3.19, 0.4, 0)),  # 4
    Part.LineSegment(Vector(-3.19, 0.4, 0), Vector(-1.89, 0.4, 0)),  # 5
    Part.LineSegment(Vector(-1.89, 0.4, 0), Vector(-1.89, -2.6, 0)),  # 6
    Part.LineSegment(Vector(-1.89, -2.6, 0), Vector(-3.19, -2.6, 0)),  # 7
    Part.LineSegment(Vector(1.89, -2.6, 0), Vector(1.89, 0.4, 0)),  # 8
    Part.LineSegment(Vector(1.89, 0.4, 0), Vector(3.19, 0.4, 0)),  # 9
    Part.LineSegment(Vector(3.19, 0.4, 0), Vector(3.19, -2.6, 0)),  # 10
    Part.LineSegment(Vector(3.19, -2.6, 0), Vector(1.89, -2.6, 0)),  # 11
    Part.LineSegment(Vector(6.97, -2.6, 0), Vector(6.97, 0.4, 0)),  # 12
    Part.LineSegment(Vector(6.97, 0.4, 0), Vector(8.27, 0.4, 0)),  # 13
    Part.LineSegment(Vector(8.27, 0.4, 0), Vector(8.27, -2.6, 0)),  # 14
    Part.LineSegment(Vector(8.27, -2.6, 0), Vector(6.97, -2.6, 0)),  # 15
], False)
sketch8.addConstraint([
    Sketcher.Constraint("Coincident", 0, 2, 1, 1),
    Sketcher.Constraint("Coincident", 1, 2, 2, 1),
    Sketcher.Constraint("Coincident", 2, 2, 3, 1),
    Sketcher.Constraint("Coincident", 3, 2, 0, 1),
    Sketcher.Constraint("Coincident", 4, 2, 5, 1),
    Sketcher.Constraint("Coincident", 5, 2, 6, 1),
    Sketcher.Constraint("Coincident", 6, 2, 7, 1),
    Sketcher.Constraint("Coincident", 7, 2, 4, 1),
    Sketcher.Constraint("Coincident", 8, 2, 9, 1),
    Sketcher.Constraint("Coincident", 9, 2, 10, 1),
    Sketcher.Constraint("Coincident", 10, 2, 11, 1),
    Sketcher.Constraint("Coincident", 11, 2, 8, 1),
    Sketcher.Constraint("Coincident", 12, 2, 13, 1),
    Sketcher.Constraint("Coincident", 13, 2, 14, 1),
    Sketcher.Constraint("Coincident", 14, 2, 15, 1),
    Sketcher.Constraint("Coincident", 15, 2, 12, 1),
    Sketcher.Constraint("Vertical", 0),
    Sketcher.Constraint("Horizontal", 1),
    Sketcher.Constraint("Vertical", 2),
    Sketcher.Constraint("Horizontal", 3),
    Sketcher.Constraint("Vertical", 4),
    Sketcher.Constraint("Horizontal", 5),
    Sketcher.Constraint("Vertical", 6),
    Sketcher.Constraint("Horizontal", 7),
    Sketcher.Constraint("Vertical", 8),
    Sketcher.Constraint("Horizontal", 9),
    Sketcher.Constraint("Vertical", 10),
    Sketcher.Constraint("Horizontal", 11),
    Sketcher.Constraint("Vertical", 12),
    Sketcher.Constraint("Horizontal", 13),
    Sketcher.Constraint("Vertical", 14),
    Sketcher.Constraint("Horizontal", 15),
    Sketcher.Constraint("Symmetric", 5, 2, 8, 2, -2),
    Sketcher.Constraint("Symmetric", 7, 2, 10, 2, -2),
    Sketcher.Constraint("Symmetric", 1, 2, 12, 2, -2),
    Sketcher.Constraint("Symmetric", 3, 2, 14, 2, -2),
    Sketcher.Constraint("Horizontal", 1, 2, 4, 2),
    Sketcher.Constraint("Horizontal", 3, 2, 6, 2),
    Sketcher.Constraint("Equal", 3, 5),
    Sketcher.Constraint("DistanceY", 0, 1, 0, 2, Q("3 mm")),
    Sketcher.Constraint("DistanceX", 1, 1, 1, 2, Q("1.3 mm")),
    Sketcher.Constraint("DistanceY", -1, 1, 0, 2, Q("0.4 mm")),
    Sketcher.Constraint("DistanceX", 0, 2, -1, 1, Q("8.27 mm")),
    Sketcher.Constraint("DistanceX", 4, 2, -1, 1, Q("3.19 mm")),
])
pocket6 = body.newObject("PartDesign::Pocket", "Pocket005")
pocket6.Profile = sketch8
pocket6.Type = "ThroughAll"
pocket6.Reversed = True

# Sketch on YZ plane
sketch9 = body.newObject("Sketcher::SketchObject", "Sketch008")
sketch9.AttachmentSupport = (doc.getObject("YZ_Plane"), [""])
sketch9.MapMode = "FlatFace"
sketch9.AttachmentOffset = App.Placement(Vector(0, 0, 11.8), App.Rotation())
sketch9.addGeometry([
    Part.LineSegment(Vector(1.2, 1, 0), Vector(-1.2, 1, 0)),
    Part.LineSegment(Vector(-1.2, 1, 0), Vector(-1.2, -2, 0)),
    Part.LineSegment(Vector(-1.2, -2, 0), Vector(1.2, -2, 0)),
    Part.LineSegment(Vector(1.2, -2, 0), Vector(1.2, 1, 0)),
], False)
sketch9.addConstraint([
    Sketcher.Constraint("Coincident", 0, 2, 1, 1),
    Sketcher.Constraint("Coincident", 1, 2, 2, 1),
    Sketcher.Constraint("Coincident", 2, 2, 3, 1),
    Sketcher.Constraint("Coincident", 3, 2, 0, 1),
    Sketcher.Constraint("Horizontal", 0),
    Sketcher.Constraint("Vertical", 1),
    Sketcher.Constraint("Horizontal", 2),
    Sketcher.Constraint("Vertical", 3),
    Sketcher.Constraint("DistanceY", 1, 2, 1, 1, Q("3 mm")),
    Sketcher.Constraint("DistanceX", 0, 2, 0, 1, Q("2.4 mm")),
    Sketcher.Constraint("DistanceY", -1, 1, 0, 2, Q("1 mm")),
    Sketcher.Constraint("DistanceX", 0, 2, -1, 1, Q("1.2 mm")),
])
pocket7 = body.newObject("PartDesign::Pocket", "Pocket006")
pocket7.Profile = sketch9
pocket7.Type = "ThroughAll"

# Sketch on XZ plane
sketch10 = body.newObject("Sketcher::SketchObject", "Sketch009")
sketch10.AttachmentSupport = (doc.getObject("XZ_Plane"), [""])
sketch10.MapMode = "FlatFace"
sketch10.AttachmentOffset = App.Placement(Vector(0, 0, 1.2), App.Rotation())
sketch10.addGeometry([
    Part.LineSegment(Vector(-8.27, 0, 0), Vector(-8.27, 0.4, 0)),  # 0
    Part.LineSegment(Vector(-8.27, 0.4, 0), Vector(-6.97, 0.4, 0)),  # 1
    Part.LineSegment(Vector(-6.97, 0.4, 0), Vector(-6.97, 0, 0)),  # 2
    Part.LineSegment(Vector(-6.97, 0, 0), Vector(-8.27, 0, 0)),  # 3
    Part.LineSegment(Vector(-3.19, 0, 0), Vector(-3.19, 0.4, 0)),  # 4
    Part.LineSegment(Vector(-3.19, 0.4, 0), Vector(-1.89, 0.4, 0)),  # 5
    Part.LineSegment(Vector(-1.89, 0.4, 0), Vector(-1.89, 0, 0)),  # 6
    Part.LineSegment(Vector(-1.89, 0, 0), Vector(-3.19, 0, 0)),  # 7
    Part.LineSegment(Vector(1.89, 0, 0), Vector(1.89, 0.4, 0)),  # 8
    Part.LineSegment(Vector(1.89, 0.4, 0), Vector(3.19, 0.4, 0)),  # 9
    Part.LineSegment(Vector(3.19, 0.4, 0), Vector(3.19, 0, 0)),  # 10
    Part.LineSegment(Vector(3.19, 0, 0), Vector(1.89, 0, 0)),  # 11
    Part.LineSegment(Vector(6.97, 0, 0), Vector(6.97, 0.4, 0)),  # 12
    Part.LineSegment(Vector(6.97, 0.4, 0), Vector(8.27, 0.4, 0)),  # 13
    Part.LineSegment(Vector(8.27, 0.4, 0), Vector(8.27, 0, 0)),  # 14
    Part.LineSegment(Vector(8.27, 0, 0), Vector(6.97, 0, 0)),  # 15
], False)
sketch10.addConstraint([
    Sketcher.Constraint("Coincident", 0, 2, 1, 1),
    Sketcher.Constraint("Coincident", 1, 2, 2, 1),
    Sketcher.Constraint("Coincident", 2, 2, 3, 1),
    Sketcher.Constraint("Coincident", 3, 2, 0, 1),
    Sketcher.Constraint("Coincident", 4, 2, 5, 1),
    Sketcher.Constraint("Coincident", 5, 2, 6, 1),
    Sketcher.Constraint("Coincident", 6, 2, 7, 1),
    Sketcher.Constraint("Coincident", 7, 2, 4, 1),
    Sketcher.Constraint("Coincident", 8, 2, 9, 1),
    Sketcher.Constraint("Coincident", 9, 2, 10, 1),
    Sketcher.Constraint("Coincident", 10, 2, 11, 1),
    Sketcher.Constraint("Coincident", 11, 2, 8, 1),
    Sketcher.Constraint("Coincident", 12, 2, 13, 1),
    Sketcher.Constraint("Coincident", 13, 2, 14, 1),
    Sketcher.Constraint("Coincident", 14, 2, 15, 1),
    Sketcher.Constraint("Coincident", 15, 2, 12, 1),
    Sketcher.Constraint("Vertical", 0),
    Sketcher.Constraint("Horizontal", 1),
    Sketcher.Constraint("Vertical", 2),
    Sketcher.Constraint("Horizontal", 3),
    Sketcher.Constraint("Vertical", 4),
    Sketcher.Constraint("Horizontal", 5),
    Sketcher.Constraint("Vertical", 6),
    Sketcher.Constraint("Horizontal", 7),
    Sketcher.Constraint("Vertical", 8),
    Sketcher.Constraint("Horizontal", 9),
    Sketcher.Constraint("Vertical", 10),
    Sketcher.Constraint("Horizontal", 11),
    Sketcher.Constraint("Vertical", 12),
    Sketcher.Constraint("Horizontal", 13),
    Sketcher.Constraint("Vertical", 14),
    Sketcher.Constraint("Horizontal", 15),
    Sketcher.Constraint("Symmetric", 7, 2, 10, 2, -1, 1),
    Sketcher.Constraint("Symmetric", 3, 2, 14, 2, -1, 1),
    Sketcher.Constraint("Symmetric", 5, 2, 8, 2, -2),
    Sketcher.Constraint("Symmetric", 1, 2, 12, 2, -2),
    Sketcher.Constraint("PointOnObject", 2, 2, -1),
    Sketcher.Constraint("PointOnObject", 6, 2, -1),
    Sketcher.Constraint("Horizontal", 1, 2, 4, 2),
    Sketcher.Constraint("Equal", 3, 5),
    Sketcher.Constraint("DistanceX", 1, 1, 1, 2, Q("1.3 mm")),
    Sketcher.Constraint("DistanceY", 0, 1, 0, 2, Q("0.4 mm")),
    Sketcher.Constraint("DistanceX", 0, 2, -1, 1, Q("8.27 mm")),
    Sketcher.Constraint("DistanceX", 4, 2, -1, 1, Q("3.19 mm")),
])
pad3 = body.newObject("PartDesign::Pad", "Pad002")
pad3.Profile = sketch10
pad3.Length = 6.5

# Sketch on XY plane
sketch11 = body.newObject("Sketcher::SketchObject", "Sketch010")
sketch11.AttachmentSupport = (doc.getObject("XY_Plane"), [""])
sketch11.MapMode = "FlatFace"
sketch11.addGeometry([
    Part.LineSegment(Vector(10, -4.95, 0), Vector(10, -9.95, 0)),
    Part.LineSegment(Vector(10, -9.95, 0), Vector(-10, -9.95, 0)),
    Part.LineSegment(Vector(-10, -9.95, 0), Vector(-10, -4.95, 0)),
    Part.LineSegment(Vector(-10, -4.95, 0), Vector(10, -4.95, 0)),
], False)
sketch11.addConstraint([
    Sketcher.Constraint("Coincident", 0, 2, 1, 1),
    Sketcher.Constraint("Coincident", 1, 2, 2, 1),
    Sketcher.Constraint("Coincident", 2, 2, 3, 1),
    Sketcher.Constraint("Coincident", 3, 2, 0, 1),
    Sketcher.Constraint("Vertical", 0),
    Sketcher.Constraint("Horizontal", 1),
    Sketcher.Constraint("Vertical", 2),
    Sketcher.Constraint("Horizontal", 3),
    Sketcher.Constraint("DistanceX", 1, 2, 1, 1, Q("20 mm")),
    Sketcher.Constraint("DistanceY", 0, 2, 0, 1, Q("5 mm")),
    Sketcher.Constraint("DistanceX", -1, 1, 0, 2, Q("10 mm")),
    Sketcher.Constraint("DistanceY", 0, 2, -1, 1, Q("9.95 mm")),
])
pocket8 = body.newObject("PartDesign::Pocket", "Pocket007")
pocket8.Profile = sketch11
pocket8.Type = "ThroughAll"
pocket8.Reversed = True

doc.recompute()
